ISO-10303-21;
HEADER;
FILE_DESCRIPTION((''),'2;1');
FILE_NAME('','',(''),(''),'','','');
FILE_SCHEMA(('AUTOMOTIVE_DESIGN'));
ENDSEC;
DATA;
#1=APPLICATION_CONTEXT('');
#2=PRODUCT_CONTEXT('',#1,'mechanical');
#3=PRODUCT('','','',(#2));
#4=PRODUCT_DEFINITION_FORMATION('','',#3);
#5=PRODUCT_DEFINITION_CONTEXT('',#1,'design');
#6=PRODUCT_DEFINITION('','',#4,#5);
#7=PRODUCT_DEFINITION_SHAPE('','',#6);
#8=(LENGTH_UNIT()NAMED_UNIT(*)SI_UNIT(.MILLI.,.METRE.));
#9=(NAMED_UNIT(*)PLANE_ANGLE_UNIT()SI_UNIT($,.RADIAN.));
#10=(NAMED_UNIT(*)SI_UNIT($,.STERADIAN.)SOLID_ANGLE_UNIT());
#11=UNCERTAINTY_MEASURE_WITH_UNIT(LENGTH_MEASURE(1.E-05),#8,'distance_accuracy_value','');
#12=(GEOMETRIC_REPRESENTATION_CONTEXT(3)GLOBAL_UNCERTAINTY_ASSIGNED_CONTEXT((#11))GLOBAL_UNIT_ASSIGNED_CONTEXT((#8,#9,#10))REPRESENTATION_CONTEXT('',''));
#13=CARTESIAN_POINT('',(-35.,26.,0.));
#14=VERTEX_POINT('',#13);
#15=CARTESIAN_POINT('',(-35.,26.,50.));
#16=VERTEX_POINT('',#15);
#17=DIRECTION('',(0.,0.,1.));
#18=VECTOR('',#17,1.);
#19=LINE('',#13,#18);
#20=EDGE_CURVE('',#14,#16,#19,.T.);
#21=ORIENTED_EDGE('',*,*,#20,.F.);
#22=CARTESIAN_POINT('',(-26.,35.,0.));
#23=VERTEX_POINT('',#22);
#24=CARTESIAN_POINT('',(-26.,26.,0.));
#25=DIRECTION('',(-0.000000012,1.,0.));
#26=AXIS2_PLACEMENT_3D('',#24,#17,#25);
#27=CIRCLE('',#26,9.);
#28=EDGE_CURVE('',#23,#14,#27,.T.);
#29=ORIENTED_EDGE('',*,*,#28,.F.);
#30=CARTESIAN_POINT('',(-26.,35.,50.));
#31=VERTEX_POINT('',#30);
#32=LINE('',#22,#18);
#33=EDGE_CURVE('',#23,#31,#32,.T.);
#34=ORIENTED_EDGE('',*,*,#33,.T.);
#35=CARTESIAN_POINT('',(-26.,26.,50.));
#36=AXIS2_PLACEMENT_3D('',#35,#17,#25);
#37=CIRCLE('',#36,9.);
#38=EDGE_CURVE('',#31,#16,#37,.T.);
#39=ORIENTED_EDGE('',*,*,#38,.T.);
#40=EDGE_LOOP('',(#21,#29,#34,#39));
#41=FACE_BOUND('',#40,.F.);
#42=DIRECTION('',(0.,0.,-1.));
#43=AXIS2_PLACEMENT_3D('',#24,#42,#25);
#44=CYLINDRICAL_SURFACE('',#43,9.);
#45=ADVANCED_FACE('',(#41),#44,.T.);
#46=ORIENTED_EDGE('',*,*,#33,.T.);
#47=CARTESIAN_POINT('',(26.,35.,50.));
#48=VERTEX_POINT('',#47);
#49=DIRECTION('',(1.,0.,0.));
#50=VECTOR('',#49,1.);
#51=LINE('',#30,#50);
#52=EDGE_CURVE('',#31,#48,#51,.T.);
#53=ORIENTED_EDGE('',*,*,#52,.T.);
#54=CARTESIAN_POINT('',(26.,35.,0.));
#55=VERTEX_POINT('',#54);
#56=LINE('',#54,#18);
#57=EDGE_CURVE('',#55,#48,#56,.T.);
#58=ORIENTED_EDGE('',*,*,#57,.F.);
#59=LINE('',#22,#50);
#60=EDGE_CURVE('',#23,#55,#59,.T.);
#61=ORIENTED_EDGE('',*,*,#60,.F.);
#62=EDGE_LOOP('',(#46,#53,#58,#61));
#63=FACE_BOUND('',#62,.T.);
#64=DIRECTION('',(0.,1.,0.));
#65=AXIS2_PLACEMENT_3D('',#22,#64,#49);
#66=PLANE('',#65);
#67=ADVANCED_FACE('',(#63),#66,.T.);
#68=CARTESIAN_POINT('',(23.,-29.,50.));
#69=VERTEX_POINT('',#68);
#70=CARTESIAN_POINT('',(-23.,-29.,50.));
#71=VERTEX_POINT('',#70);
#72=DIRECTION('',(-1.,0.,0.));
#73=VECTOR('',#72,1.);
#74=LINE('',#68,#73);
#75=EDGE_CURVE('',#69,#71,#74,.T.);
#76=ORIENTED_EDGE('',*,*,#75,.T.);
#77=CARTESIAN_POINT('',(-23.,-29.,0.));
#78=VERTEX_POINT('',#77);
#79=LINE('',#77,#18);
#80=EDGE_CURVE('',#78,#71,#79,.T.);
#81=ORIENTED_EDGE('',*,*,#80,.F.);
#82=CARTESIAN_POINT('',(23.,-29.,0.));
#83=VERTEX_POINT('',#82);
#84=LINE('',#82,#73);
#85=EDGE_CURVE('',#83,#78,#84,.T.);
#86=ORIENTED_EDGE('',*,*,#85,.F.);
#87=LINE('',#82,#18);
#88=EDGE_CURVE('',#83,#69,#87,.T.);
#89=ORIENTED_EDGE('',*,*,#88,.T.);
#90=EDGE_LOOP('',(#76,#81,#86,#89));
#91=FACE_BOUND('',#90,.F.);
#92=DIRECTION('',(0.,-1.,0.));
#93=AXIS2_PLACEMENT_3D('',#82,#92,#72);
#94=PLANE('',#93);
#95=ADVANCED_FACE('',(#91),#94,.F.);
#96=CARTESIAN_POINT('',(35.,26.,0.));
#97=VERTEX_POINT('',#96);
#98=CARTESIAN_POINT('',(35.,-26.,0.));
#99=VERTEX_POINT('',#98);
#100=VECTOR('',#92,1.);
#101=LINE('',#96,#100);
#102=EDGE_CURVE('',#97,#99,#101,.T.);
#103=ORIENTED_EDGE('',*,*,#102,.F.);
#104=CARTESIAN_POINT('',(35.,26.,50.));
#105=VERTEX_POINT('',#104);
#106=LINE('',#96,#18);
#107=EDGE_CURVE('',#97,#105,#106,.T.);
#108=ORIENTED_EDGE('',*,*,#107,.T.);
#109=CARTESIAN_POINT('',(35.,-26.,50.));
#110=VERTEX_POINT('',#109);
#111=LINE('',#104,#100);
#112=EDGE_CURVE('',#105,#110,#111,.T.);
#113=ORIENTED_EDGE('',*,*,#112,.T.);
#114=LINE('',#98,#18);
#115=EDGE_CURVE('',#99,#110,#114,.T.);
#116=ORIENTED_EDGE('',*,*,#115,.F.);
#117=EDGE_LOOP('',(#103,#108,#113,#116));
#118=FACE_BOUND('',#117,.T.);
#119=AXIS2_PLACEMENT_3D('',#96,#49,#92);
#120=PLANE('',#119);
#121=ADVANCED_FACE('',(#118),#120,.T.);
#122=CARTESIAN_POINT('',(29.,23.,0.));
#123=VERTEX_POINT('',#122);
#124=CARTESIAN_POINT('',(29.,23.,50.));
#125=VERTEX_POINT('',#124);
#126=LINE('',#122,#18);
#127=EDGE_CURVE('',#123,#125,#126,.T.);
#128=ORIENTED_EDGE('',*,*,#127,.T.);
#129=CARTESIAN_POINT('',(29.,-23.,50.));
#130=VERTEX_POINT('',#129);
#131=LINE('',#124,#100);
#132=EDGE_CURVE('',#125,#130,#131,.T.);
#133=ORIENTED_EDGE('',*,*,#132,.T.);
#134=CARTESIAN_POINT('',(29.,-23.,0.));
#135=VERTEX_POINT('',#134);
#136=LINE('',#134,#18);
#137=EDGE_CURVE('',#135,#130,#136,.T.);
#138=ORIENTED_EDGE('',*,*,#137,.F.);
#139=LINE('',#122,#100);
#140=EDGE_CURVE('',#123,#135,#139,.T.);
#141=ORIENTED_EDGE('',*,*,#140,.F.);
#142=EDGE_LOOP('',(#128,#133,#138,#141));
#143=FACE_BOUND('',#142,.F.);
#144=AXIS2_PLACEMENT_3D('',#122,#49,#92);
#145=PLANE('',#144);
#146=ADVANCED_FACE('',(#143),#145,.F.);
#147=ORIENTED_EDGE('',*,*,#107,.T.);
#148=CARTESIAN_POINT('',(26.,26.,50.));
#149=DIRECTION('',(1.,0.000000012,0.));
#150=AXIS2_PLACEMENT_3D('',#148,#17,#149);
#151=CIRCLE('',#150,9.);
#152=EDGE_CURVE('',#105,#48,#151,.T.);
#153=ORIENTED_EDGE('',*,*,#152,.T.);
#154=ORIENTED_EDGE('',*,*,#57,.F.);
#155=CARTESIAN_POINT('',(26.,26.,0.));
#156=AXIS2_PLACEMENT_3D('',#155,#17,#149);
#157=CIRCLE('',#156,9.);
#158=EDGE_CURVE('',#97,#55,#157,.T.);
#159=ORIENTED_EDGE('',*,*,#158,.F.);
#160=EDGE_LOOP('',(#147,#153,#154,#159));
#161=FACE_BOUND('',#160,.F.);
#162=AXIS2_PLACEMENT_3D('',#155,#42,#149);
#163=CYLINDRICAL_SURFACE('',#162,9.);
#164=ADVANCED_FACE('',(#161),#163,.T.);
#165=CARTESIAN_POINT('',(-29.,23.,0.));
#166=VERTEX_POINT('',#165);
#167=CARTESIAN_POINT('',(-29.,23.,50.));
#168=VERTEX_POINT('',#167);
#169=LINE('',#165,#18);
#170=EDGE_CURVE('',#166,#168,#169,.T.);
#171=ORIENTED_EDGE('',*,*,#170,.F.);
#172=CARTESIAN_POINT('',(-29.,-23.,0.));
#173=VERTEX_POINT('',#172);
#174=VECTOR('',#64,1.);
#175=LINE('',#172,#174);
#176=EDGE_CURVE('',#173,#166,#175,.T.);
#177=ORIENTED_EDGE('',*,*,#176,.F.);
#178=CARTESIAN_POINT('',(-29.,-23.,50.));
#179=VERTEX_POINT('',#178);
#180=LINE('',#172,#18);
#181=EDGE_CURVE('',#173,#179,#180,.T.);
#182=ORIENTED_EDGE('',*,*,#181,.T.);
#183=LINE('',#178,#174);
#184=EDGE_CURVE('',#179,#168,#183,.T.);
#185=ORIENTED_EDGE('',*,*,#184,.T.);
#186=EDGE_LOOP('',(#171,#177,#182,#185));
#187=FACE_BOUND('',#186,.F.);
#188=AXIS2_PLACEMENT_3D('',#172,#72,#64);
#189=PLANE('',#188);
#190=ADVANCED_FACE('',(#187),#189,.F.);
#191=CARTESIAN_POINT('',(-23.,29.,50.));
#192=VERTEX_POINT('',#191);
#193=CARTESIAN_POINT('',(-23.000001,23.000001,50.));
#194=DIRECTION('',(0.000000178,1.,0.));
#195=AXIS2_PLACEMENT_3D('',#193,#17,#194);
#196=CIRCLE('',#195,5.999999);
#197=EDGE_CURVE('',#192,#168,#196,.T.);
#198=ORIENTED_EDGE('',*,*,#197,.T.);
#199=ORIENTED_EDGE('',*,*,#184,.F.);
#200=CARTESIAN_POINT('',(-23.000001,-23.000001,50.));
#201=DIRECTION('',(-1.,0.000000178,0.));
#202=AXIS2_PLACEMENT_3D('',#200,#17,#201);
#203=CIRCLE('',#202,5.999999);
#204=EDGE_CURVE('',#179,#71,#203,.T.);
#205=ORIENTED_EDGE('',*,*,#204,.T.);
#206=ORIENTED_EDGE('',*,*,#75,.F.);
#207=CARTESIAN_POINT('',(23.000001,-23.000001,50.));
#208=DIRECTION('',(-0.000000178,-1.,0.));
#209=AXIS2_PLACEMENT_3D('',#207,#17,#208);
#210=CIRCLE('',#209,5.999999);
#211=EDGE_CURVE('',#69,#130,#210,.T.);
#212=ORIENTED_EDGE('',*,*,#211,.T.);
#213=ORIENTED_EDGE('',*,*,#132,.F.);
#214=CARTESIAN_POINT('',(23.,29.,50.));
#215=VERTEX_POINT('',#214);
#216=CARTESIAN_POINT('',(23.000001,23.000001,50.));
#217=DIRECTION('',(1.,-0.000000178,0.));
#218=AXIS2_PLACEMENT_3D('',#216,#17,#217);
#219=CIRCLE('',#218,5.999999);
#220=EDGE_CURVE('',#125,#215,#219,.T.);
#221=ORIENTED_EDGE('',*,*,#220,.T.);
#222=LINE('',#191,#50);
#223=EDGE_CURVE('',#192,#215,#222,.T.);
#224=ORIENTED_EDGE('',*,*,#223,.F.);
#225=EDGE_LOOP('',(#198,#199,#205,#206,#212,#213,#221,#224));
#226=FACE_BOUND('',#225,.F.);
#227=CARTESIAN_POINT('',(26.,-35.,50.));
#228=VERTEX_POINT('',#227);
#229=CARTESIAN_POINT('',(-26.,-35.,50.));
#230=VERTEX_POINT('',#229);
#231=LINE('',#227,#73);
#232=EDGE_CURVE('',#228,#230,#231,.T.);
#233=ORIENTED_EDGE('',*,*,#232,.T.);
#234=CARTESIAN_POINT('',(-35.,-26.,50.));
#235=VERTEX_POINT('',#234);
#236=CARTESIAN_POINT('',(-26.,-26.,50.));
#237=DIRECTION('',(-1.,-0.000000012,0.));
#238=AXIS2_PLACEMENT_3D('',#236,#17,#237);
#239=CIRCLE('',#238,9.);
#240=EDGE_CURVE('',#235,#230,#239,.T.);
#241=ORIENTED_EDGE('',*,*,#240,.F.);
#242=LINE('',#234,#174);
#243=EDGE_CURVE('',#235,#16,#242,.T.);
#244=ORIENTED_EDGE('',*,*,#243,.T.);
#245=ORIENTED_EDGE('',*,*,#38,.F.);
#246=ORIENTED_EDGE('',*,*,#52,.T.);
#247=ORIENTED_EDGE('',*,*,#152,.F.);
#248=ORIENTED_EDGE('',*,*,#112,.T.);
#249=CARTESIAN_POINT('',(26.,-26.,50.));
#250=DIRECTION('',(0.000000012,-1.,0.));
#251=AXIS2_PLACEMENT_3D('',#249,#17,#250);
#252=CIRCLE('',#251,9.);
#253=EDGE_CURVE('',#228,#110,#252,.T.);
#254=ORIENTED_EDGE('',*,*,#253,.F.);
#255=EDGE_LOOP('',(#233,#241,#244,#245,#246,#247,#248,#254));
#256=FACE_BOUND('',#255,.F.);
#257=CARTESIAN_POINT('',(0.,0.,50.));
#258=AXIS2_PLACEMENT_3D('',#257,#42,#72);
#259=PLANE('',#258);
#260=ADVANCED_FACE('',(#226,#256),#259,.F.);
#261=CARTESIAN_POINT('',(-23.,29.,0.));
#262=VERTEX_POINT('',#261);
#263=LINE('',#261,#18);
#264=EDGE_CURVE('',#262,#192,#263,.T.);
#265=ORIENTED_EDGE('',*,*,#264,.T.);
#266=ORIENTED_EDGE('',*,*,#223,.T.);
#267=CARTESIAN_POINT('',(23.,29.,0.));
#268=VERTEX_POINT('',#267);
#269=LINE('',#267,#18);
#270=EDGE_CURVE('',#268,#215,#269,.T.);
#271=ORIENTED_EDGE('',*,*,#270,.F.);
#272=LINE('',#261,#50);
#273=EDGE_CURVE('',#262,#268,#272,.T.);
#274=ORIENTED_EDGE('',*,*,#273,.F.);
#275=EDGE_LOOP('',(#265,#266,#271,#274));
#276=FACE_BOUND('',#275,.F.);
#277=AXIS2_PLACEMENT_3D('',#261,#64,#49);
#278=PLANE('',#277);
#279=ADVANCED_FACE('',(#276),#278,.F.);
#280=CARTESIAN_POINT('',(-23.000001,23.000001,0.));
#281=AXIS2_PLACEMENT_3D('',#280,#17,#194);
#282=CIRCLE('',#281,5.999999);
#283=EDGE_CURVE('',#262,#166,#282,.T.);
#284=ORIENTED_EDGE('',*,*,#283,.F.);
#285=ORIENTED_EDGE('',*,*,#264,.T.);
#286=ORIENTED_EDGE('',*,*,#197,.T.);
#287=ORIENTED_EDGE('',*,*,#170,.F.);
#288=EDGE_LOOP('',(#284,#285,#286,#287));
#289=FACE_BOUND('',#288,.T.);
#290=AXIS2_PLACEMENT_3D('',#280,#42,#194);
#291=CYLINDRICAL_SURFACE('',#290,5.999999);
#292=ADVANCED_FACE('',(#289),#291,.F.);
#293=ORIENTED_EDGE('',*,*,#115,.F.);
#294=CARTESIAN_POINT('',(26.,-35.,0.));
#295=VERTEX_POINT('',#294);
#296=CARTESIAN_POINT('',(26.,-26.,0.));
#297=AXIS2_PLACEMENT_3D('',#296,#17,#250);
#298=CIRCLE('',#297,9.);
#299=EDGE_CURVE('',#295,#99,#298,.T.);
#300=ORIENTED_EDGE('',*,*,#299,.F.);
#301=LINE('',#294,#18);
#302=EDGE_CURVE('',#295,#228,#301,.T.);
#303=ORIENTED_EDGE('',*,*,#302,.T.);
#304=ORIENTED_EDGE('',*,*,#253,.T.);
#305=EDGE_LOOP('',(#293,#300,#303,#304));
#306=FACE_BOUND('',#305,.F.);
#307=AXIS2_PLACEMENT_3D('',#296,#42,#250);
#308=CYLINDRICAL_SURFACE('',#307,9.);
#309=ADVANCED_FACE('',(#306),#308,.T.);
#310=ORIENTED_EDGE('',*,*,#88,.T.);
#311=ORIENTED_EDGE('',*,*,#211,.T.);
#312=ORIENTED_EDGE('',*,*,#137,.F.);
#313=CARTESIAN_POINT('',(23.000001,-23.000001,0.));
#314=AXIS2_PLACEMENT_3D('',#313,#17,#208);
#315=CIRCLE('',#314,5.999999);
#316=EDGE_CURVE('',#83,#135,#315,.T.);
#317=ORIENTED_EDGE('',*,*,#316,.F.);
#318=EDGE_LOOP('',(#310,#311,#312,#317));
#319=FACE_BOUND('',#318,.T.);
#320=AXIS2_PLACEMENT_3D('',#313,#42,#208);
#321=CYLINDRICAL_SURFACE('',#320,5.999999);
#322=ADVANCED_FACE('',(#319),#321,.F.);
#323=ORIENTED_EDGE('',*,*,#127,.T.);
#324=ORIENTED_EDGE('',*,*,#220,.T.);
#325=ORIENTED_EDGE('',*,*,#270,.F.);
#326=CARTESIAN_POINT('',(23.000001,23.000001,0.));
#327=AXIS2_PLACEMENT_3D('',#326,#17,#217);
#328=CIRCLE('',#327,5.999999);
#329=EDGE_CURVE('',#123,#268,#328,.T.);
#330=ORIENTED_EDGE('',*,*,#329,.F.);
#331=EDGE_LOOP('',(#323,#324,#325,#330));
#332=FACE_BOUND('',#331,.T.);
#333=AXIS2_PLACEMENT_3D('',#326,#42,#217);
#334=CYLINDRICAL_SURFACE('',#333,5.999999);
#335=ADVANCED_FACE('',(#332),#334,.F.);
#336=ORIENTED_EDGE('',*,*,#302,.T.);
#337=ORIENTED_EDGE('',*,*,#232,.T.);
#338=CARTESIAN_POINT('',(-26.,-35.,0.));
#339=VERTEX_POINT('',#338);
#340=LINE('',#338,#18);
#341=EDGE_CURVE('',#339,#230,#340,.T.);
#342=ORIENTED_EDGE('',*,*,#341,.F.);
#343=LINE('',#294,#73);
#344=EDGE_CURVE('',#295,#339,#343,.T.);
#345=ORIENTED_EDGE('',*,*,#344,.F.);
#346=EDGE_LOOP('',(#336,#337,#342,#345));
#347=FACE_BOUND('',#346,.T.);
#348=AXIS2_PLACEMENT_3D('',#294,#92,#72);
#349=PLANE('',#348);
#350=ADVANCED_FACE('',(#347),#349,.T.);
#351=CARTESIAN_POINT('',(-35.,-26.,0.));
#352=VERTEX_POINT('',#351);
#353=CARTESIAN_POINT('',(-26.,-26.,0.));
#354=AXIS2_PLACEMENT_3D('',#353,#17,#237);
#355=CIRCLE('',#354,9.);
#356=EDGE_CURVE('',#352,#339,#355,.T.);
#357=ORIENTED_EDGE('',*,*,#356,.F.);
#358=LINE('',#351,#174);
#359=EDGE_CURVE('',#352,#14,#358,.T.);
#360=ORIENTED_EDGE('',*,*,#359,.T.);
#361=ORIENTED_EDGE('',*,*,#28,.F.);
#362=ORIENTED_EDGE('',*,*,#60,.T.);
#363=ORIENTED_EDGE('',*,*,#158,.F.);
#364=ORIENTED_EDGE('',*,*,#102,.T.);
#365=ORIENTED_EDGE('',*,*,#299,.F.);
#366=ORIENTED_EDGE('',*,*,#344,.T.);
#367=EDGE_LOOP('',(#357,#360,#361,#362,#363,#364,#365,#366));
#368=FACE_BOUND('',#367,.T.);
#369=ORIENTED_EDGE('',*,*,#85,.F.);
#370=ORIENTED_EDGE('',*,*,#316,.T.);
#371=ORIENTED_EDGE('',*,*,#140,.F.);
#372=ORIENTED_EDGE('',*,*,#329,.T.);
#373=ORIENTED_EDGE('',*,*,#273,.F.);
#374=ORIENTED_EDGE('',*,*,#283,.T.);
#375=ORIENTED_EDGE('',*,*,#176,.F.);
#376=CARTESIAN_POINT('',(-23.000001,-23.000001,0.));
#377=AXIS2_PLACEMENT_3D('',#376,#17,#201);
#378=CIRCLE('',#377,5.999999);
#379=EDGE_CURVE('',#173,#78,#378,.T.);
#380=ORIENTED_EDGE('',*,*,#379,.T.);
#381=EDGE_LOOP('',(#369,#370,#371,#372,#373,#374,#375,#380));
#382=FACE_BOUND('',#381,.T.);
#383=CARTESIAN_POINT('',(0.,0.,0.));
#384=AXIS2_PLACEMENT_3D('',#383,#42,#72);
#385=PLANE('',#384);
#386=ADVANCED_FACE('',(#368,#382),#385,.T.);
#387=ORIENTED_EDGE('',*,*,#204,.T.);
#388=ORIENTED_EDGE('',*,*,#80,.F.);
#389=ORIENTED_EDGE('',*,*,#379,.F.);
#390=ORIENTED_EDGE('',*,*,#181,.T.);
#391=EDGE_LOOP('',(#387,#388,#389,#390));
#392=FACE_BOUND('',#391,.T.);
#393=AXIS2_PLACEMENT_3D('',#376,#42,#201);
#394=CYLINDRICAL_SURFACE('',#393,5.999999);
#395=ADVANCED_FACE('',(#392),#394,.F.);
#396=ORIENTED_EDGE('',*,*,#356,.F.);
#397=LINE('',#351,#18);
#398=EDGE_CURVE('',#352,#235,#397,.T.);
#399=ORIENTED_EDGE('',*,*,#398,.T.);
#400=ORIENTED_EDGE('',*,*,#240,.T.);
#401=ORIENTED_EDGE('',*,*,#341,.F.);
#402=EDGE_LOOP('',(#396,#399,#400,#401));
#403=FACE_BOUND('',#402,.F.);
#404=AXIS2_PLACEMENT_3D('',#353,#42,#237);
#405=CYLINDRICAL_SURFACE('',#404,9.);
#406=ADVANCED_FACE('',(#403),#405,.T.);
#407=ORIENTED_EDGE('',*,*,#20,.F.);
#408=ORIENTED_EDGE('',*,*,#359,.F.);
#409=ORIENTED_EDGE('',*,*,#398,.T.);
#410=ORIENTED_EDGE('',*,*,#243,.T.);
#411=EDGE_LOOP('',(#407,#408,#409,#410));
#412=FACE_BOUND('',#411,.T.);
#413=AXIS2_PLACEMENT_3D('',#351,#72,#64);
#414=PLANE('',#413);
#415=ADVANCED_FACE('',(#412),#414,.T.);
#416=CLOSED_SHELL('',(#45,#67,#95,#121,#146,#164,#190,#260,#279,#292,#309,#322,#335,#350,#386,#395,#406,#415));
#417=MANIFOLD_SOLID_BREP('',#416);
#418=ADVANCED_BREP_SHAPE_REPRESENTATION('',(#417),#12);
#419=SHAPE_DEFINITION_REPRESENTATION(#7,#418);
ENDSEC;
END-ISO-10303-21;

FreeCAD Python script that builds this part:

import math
import FreeCAD as App
import Part
import Sketcher

doc = App.newDocument("Part")
body = doc.addObject("PartDesign::Body", "Body")

sketch1 = body.newObject("Sketcher::SketchObject", "Sketch")
sketch1.AttachmentSupport = (doc.getObject("XY_Plane"), [""])
sketch1.MapMode = "FlatFace"
sketch1.addGeometry(Part.LineSegment(App.Vector(26, 35, 0), App.Vector(-26, 35, 0)), False)
sketch1.addGeometry(Part.ArcOfCircle(Part.Circle(App.Vector(-26, 26, 0), App.Vector(0, 0, 1), 9), math.radians(90), math.radians(180)), False)
sketch1.addGeometry(Part.LineSegment(App.Vector(-35, 26, 0), App.Vector(-35, -26, 0)), False)
sketch1.addGeometry(Part.ArcOfCircle(Part.Circle(App.Vector(-26, -26, 0), App.Vector(0, 0, 1), 9), math.radians(-180), math.radians(-90)), False)
sketch1.addGeometry(Part.LineSegment(App.Vector(-26, -35, 0), App.Vector(26, -35, 0)), False)
sketch1.addGeometry(Part.ArcOfCircle(Part.Circle(App.Vector(26, -26, 0), App.Vector(0, 0, 1), 9), math.radians(-90), math.radians(0)), False)
sketch1.addGeometry(Part.LineSegment(App.Vector(35, -26, 0), App.Vector(35, 26, 0)), False)
sketch1.addGeometry(Part.ArcOfCircle(Part.Circle(App.Vector(26, 26, 0), App.Vector(0, 0, 1), 9), math.radians(0), math.radians(90)), False)
sketch1.addGeometry(Part.LineSegment(App.Vector(-23, 29, 0), App.Vector(23, 29, 0)), False)
sketch1.addGeometry(Part.ArcOfCircle(Part.Circle(App.Vector(23, 23, 0), App.Vector(0, 0, 1), 6), math.radians(0), math.radians(90)), False)
sketch1.addGeometry(Part.LineSegment(App.Vector(29, 23, 0), App.Vector(29, -23, 0)), False)
sketch1.addGeometry(Part.ArcOfCircle(Part.Circle(App.Vector(23, -23, 0), App.Vector(0, 0, 1), 6), math.radians(-90), math.radians(0)), False)
sketch1.addGeometry(Part.LineSegment(App.Vector(23, -29, 0), App.Vector(-23, -29, 0)), False)
sketch1.addGeometry(Part.ArcOfCircle(Part.Circle(App.Vector(-23, -23, 0), App.Vector(0, 0, 1), 6), math.radians(180), math.radians(270)), False)
sketch1.addGeometry(Part.LineSegment(App.Vector(-29, -23, 0), App.Vector(-29, 23, 0)), False)
sketch1.addGeometry(Part.ArcOfCircle(Part.Circle(App.Vector(-23, 23, 0), App.Vector(0, 0, 1), 6), math.radians(90), math.radians(180)), False)
sketch1.addConstraint(Sketcher.Constraint("Tangent", 0, 2, 1, 1))
sketch1.addConstraint(Sketcher.Constraint("Tangent", 1, 2, 2, 1))
sketch1.addConstraint(Sketcher.Constraint("Tangent", 2, 2, 3, 1))
sketch1.addConstraint(Sketcher.Constraint("Tangent", 3, 2, 4, 1))
sketch1.addConstraint(Sketcher.Constraint("Tangent", 4, 2, 5, 1))
sketch1.addConstraint(Sketcher.Constraint("Tangent", 5, 2, 6, 1))
sketch1.addConstraint(Sketcher.Constraint("Tangent", 6, 2, 7, 1))
sketch1.addConstraint(Sketcher.Constraint("Tangent", 7, 2, 0, 1))
sketch1.addConstraint(Sketcher.Constraint("Tangent", 8, 2, 9, 2))
sketch1.addConstraint(Sketcher.Constraint("Tangent", 9, 1, 10, 1))
sketch1.addConstraint(Sketcher.Constraint("Tangent", 10, 2, 11, 2))
sketch1.addConstraint(Sketcher.Constraint("Tangent", 11, 1, 12, 1))
sketch1.addConstraint(Sketcher.Constraint("Tangent", 12, 2, 13, 2))
sketch1.addConstraint(Sketcher.Constraint("Tangent", 13, 1, 14, 1))
sketch1.addConstraint(Sketcher.Constraint("Tangent", 14, 2, 15, 2))
sketch1.addConstraint(Sketcher.Constraint("Tangent", 15, 1, 8, 1))
sketch1.addConstraint(Sketcher.Constraint("Horizontal", 0))
sketch1.addConstraint(Sketcher.Constraint("Vertical", 2))
sketch1.addConstraint(Sketcher.Constraint("Horizontal", 4))
sketch1.addConstraint(Sketcher.Constraint("Vertical", 6))
sketch1.addConstraint(Sketcher.Constraint("Horizontal", 8))
sketch1.addConstraint(Sketcher.Constraint("Vertical", 10))
sketch1.addConstraint(Sketcher.Constraint("Horizontal", 12))
sketch1.addConstraint(Sketcher.Constraint("Vertical", 14))
sketch1.addConstraint(Sketcher.Constraint("Equal", 1, 3))
sketch1.addConstraint(Sketcher.Constraint("Equal", 3, 5))
sketch1.addConstraint(Sketcher.Constraint("Equal", 5, 7))
sketch1.addConstraint(Sketcher.Constraint("Equal", 9, 11))
sketch1.addConstraint(Sketcher.Constraint("Equal", 11, 13))
sketch1.addConstraint(Sketcher.Constraint("Equal", 13, 15))
sketch1.addConstraint(Sketcher.Constraint("Symmetric", 1, 3, 5, 3, -1, 1))
sketch1.addConstraint(Sketcher.Constraint("Symmetric", 9, 3, 13, 3, -1, 1))
sketch1.addConstraint(Sketcher.Constraint("Equal", 4, 2))
sketch1.addConstraint(Sketcher.Constraint("Equal", 12, 10))
sketch1.addConstraint(Sketcher.Constraint("Radius", 1, 9.0))
sketch1.addConstraint(Sketcher.Constraint("Radius", 9, 5.999999))
sketch1.addConstraint(Sketcher.Constraint("DistanceX", 0, 2, 0, 1, 52.0))
sketch1.addConstraint(Sketcher.Constraint("DistanceX", 8, 1, 8, 2, 46.0))
pad1 = body.newObject("PartDesign::Pad", "Pad")
pad1.Profile = sketch1
pad1.Length = 50

doc.recompute()
